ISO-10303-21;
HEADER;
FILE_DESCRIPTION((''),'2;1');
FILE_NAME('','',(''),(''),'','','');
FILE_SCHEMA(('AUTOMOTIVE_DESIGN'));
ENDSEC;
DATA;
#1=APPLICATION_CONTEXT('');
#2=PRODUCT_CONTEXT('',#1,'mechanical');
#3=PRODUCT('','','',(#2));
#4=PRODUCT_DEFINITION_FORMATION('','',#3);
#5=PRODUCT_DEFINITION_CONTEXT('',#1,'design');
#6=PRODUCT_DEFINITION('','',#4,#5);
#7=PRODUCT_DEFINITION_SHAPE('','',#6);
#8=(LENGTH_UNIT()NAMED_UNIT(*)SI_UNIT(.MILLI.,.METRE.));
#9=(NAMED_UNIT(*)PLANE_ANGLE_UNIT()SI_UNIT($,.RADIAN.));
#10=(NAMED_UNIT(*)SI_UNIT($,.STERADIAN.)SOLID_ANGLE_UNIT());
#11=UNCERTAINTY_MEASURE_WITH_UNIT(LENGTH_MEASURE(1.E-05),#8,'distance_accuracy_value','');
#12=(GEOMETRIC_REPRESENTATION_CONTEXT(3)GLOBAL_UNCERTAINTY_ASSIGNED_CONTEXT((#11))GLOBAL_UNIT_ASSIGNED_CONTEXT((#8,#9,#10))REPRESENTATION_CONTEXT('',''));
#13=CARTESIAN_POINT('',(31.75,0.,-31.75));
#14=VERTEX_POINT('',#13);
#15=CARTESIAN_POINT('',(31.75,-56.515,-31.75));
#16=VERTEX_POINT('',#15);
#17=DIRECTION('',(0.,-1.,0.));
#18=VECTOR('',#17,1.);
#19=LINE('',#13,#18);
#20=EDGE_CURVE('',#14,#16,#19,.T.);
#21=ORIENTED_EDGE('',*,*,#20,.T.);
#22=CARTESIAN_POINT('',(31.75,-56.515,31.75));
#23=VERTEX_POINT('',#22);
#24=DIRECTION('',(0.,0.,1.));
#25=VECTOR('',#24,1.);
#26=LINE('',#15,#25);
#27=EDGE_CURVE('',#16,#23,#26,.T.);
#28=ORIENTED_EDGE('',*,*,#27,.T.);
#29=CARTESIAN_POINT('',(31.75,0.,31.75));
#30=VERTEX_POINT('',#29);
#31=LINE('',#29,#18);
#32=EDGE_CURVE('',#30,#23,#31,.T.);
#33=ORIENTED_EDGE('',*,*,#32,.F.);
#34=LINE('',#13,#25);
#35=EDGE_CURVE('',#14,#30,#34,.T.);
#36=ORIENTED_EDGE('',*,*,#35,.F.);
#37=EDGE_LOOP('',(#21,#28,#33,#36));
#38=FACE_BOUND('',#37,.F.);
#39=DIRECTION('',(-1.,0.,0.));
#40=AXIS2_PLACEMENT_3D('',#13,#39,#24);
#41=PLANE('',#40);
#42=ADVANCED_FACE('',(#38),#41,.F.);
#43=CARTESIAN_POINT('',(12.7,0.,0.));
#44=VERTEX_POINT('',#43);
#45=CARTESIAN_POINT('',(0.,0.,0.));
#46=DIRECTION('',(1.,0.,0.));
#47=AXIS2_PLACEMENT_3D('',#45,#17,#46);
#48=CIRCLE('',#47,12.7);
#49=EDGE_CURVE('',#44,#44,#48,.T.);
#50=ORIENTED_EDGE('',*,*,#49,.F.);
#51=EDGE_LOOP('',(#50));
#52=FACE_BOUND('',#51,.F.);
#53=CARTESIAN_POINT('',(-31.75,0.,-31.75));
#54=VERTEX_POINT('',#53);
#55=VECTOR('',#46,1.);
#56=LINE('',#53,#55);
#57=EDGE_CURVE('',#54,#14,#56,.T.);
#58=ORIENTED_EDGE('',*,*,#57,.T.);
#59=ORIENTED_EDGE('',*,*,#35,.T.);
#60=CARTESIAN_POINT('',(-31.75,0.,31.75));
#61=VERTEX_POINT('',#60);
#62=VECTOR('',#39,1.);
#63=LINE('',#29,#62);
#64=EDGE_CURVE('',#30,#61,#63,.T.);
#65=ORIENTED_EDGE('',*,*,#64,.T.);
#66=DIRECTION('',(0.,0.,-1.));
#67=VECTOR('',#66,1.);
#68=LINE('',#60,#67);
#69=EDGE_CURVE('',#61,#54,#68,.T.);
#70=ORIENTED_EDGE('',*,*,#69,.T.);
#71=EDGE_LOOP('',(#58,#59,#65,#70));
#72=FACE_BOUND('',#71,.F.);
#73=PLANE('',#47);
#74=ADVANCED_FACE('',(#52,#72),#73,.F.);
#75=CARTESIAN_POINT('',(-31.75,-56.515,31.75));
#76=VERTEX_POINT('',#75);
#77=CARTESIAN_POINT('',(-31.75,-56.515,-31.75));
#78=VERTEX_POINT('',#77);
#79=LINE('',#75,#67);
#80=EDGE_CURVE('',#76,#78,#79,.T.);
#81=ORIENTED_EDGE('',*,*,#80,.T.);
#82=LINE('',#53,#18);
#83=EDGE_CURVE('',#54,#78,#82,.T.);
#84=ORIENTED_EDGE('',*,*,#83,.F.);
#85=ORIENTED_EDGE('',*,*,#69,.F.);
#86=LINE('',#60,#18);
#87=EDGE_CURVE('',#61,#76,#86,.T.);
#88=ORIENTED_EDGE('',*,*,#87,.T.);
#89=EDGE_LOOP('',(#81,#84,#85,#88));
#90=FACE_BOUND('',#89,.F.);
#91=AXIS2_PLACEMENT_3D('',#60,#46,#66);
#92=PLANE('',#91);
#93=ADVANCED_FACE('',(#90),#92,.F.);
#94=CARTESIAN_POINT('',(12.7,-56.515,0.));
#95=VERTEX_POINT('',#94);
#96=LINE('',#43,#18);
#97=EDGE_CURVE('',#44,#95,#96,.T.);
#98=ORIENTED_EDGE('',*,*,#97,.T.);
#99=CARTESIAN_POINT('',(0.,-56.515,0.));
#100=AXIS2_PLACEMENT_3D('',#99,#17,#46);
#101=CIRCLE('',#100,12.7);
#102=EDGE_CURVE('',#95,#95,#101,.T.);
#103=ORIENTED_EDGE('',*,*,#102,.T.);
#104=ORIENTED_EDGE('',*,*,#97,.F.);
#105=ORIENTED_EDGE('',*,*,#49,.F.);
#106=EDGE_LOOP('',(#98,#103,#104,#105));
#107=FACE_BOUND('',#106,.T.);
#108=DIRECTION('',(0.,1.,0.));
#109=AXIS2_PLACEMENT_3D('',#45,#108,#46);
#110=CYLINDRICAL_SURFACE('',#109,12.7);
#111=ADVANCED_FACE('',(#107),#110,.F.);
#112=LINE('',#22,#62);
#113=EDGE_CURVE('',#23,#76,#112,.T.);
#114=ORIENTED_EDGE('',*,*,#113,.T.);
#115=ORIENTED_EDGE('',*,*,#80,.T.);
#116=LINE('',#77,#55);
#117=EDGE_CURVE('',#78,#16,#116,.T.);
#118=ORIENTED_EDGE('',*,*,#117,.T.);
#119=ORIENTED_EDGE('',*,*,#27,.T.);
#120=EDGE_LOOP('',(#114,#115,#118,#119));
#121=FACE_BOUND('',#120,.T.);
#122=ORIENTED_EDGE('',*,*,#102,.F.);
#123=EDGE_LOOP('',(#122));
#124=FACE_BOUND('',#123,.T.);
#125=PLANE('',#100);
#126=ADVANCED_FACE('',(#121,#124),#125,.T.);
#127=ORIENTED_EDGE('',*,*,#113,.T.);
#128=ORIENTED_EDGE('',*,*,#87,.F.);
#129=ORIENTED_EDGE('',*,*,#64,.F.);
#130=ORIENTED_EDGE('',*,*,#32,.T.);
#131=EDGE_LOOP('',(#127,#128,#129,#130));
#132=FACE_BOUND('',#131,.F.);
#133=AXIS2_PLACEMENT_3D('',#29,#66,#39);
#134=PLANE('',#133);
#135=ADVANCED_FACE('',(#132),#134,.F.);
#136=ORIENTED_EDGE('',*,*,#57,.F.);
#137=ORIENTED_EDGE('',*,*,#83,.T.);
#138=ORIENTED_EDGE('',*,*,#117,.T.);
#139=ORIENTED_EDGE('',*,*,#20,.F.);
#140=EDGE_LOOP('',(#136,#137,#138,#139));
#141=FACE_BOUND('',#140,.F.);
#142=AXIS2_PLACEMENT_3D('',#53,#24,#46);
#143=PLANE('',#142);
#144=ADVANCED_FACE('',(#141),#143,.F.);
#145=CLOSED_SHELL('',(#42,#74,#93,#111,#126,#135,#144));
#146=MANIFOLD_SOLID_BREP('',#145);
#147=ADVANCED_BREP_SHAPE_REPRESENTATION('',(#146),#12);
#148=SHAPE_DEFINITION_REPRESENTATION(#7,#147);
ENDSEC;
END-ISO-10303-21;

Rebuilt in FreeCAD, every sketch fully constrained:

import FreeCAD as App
import Part
import Sketcher

V = App.Vector
Q = App.Units.Quantity

doc = App.newDocument("Part")
body = doc.addObject("PartDesign::Body", "Body")

# Sketch on XZ plane
sketch1 = body.newObject("Sketcher::SketchObject", "Sketch")
sketch1.AttachmentSupport = (doc.getObject("XZ_Plane"), [""])
sketch1.MapMode = "FlatFace"
sketch1.addGeometry([
    Part.LineSegment(V(32, -32, 0), V(32, 32, 0)),  # 0
    Part.LineSegment(V(32, 32, 0), V(-32, 32, 0)),  # 1
    Part.LineSegment(V(-32, 32, 0), V(-32, -32, 0)),  # 2
    Part.LineSegment(V(-32, -32, 0), V(32, -32, 0)),  # 3
    Part.Circle(V(0, 0, 0), V(0, 0, 1), 13),  # 4
], False)
sketch1.addConstraint([
    Sketcher.Constraint("Coincident", 0, 2, 1, 1),
    Sketcher.Constraint("Coincident", 1, 2, 2, 1),
    Sketcher.Constraint("Coincident", 2, 2, 3, 1),
    Sketcher.Constraint("Coincident", 3, 2, 0, 1),
    Sketcher.Constraint("Vertical", 0),
    Sketcher.Constraint("Horizontal", 1),
    Sketcher.Constraint("Vertical", 2),
    Sketcher.Constraint("Horizontal", 3),
    Sketcher.Constraint("Coincident", 4, 3, -1, 1),
    Sketcher.Constraint("Symmetric", 0, 2, 2, 2, -1, 1),
    Sketcher.Constraint("Equal", 3, 0),
    Sketcher.Constraint("Diameter", 4, Q("1 in")),
    Sketcher.Constraint("DistanceX", 1, 2, 1, 1, Q("2.5 in")),
])
pad1 = body.newObject("PartDesign::Pad", "Pad")
pad1.Profile = sketch1
pad1.Length = Q("2.225 in")

doc.recompute()
